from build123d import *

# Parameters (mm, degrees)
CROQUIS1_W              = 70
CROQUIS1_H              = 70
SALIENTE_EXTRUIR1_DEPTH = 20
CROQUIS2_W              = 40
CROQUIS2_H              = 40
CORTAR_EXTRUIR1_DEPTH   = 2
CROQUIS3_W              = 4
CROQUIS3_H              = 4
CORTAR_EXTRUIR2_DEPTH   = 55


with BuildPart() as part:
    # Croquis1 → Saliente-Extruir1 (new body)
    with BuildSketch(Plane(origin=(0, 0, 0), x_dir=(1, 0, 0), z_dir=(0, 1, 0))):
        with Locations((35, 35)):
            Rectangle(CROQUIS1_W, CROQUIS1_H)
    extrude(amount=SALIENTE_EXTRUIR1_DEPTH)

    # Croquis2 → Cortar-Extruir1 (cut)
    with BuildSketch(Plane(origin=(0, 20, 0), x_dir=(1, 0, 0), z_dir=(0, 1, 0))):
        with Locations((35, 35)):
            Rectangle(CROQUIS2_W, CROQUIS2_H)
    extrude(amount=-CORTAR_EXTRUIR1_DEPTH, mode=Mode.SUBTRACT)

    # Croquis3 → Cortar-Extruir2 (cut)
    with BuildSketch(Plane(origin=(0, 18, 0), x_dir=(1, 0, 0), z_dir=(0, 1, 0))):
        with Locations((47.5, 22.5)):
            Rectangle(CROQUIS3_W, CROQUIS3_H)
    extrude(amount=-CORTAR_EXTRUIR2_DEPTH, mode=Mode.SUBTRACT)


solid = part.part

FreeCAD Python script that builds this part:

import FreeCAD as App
import Part
import Sketcher
from FreeCAD import Vector

doc = App.newDocument("Part")
body = doc.addObject("PartDesign::Body", "Body")

# Sketch on XZ plane
sketch1 = doc.addObject("Sketcher::SketchObject", "Sketch")
body.addObject(sketch1)
sketch1.AttachmentSupport = (doc.XZ_Plane, [""])
sketch1.MapMode = "FlatFace"
sketch1.addGeometry(Part.LineSegment(Vector(0, -70, 0), Vector(0, 0, 0)), False)
sketch1.addGeometry(Part.LineSegment(Vector(0, 0, 0), Vector(70, 0, 0)), False)
sketch1.addGeometry(Part.LineSegment(Vector(70, 0, 0), Vector(70, -70, 0)), False)
sketch1.addGeometry(Part.LineSegment(Vector(70, -70, 0), Vector(0, -70, 0)), False)
sketch1.addConstraint(Sketcher.Constraint("Coincident", 0, 2, 1, 1))
sketch1.addConstraint(Sketcher.Constraint("Coincident", 1, 2, 2, 1))
sketch1.addConstraint(Sketcher.Constraint("Coincident", 2, 2, 3, 1))
sketch1.addConstraint(Sketcher.Constraint("Coincident", 3, 2, 0, 1))
sketch1.addConstraint(Sketcher.Constraint("Vertical", 0))
sketch1.addConstraint(Sketcher.Constraint("Horizontal", 1))
sketch1.addConstraint(Sketcher.Constraint("Vertical", 2))
sketch1.addConstraint(Sketcher.Constraint("Horizontal", 3))
sketch1.addConstraint(Sketcher.Constraint("Coincident", 0, 2, -1, 1))
sketch1.addConstraint(Sketcher.Constraint("Equal", 3, 0))
sketch1.addConstraint(Sketcher.Constraint("DistanceX", 1, 1, 1, 2, 70.0))
pad1 = doc.addObject("PartDesign::Pad", "Pad")
body.addObject(pad1)
pad1.Profile = sketch1
pad1.Length = 20
pad1.Reversed = True

# Sketch on XZ plane
sketch2 = doc.addObject("Sketcher::SketchObject", "Sketch001")
body.addObject(sketch2)
sketch2.AttachmentSupport = (doc.XZ_Plane, [""])
sketch2.MapMode = "FlatFace"
sketch2.AttachmentOffset = App.Placement(Vector(0, 0, -20), App.Rotation())
sketch2.addGeometry(Part.LineSegment(Vector(15, -55, 0), Vector(15, -15, 0)), False)
sketch2.addGeometry(Part.LineSegment(Vector(15, -15, 0), Vector(55, -15, 0)), False)
sketch2.addGeometry(Part.LineSegment(Vector(55, -15, 0), Vector(55, -55, 0)), False)
sketch2.addGeometry(Part.LineSegment(Vector(55, -55, 0), Vector(15, -55, 0)), False)
sketch2.addConstraint(Sketcher.Constraint("Coincident", 0, 2, 1, 1))
sketch2.addConstraint(Sketcher.Constraint("Coincident", 1, 2, 2, 1))
sketch2.addConstraint(Sketcher.Constraint("Coincident", 2, 2, 3, 1))
sketch2.addConstraint(Sketcher.Constraint("Coincident", 3, 2, 0, 1))
sketch2.addConstraint(Sketcher.Constraint("Vertical", 0))
sketch2.addConstraint(Sketcher.Constraint("Horizontal", 1))
sketch2.addConstraint(Sketcher.Constraint("Vertical", 2))
sketch2.addConstraint(Sketcher.Constraint("Horizontal", 3))
sketch2.addConstraint(Sketcher.Constraint("Equal", 3, 0))
sketch2.addConstraint(Sketcher.Constraint("DistanceX", 1, 1, 1, 2, 40.0))
sketch2.addConstraint(Sketcher.Constraint("DistanceX", -1, 1, 0, 2, 15.0))
sketch2.addConstraint(Sketcher.Constraint("DistanceY", 0, 2, -1, 1, 15.0))
pocket1 = doc.addObject("PartDesign::Pocket", "Pocket")
body.addObject(pocket1)
pocket1.Profile = sketch2
pocket1.Length = 2
pocket1.Reversed = True

# Sketch on XZ plane
sketch3 = doc.addObject("Sketcher::SketchObject", "Sketch002")
body.addObject(sketch3)
sketch3.AttachmentSupport = (doc.XZ_Plane, [""])
sketch3.MapMode = "FlatFace"
sketch3.AttachmentOffset = App.Placement(Vector(0, 0, -18), App.Rotation())
sketch3.addGeometry(Part.LineSegment(Vector(45.5, -24.5, 0), Vector(45.5, -20.5, 0)), False)
sketch3.addGeometry(Part.LineSegment(Vector(45.5, -20.5, 0), Vector(49.5, -20.5, 0)), False)
sketch3.addGeometry(Part.LineSegment(Vector(49.5, -20.5, 0), Vector(49.5, -24.5, 0)), False)
sketch3.addGeometry(Part.LineSegment(Vector(49.5, -24.5, 0), Vector(45.5, -24.5, 0)), False)
sketch3.addConstraint(Sketcher.Constraint("Coincident", 0, 2, 1, 1))
sketch3.addConstraint(Sketcher.Constraint("Coincident", 1, 2, 2, 1))
sketch3.addConstraint(Sketcher.Constraint("Coincident", 2, 2, 3, 1))
sketch3.addConstraint(Sketcher.Constraint("Coincident", 3, 2, 0, 1))
sketch3.addConstraint(Sketcher.Constraint("Vertical", 0))
sketch3.addConstraint(Sketcher.Constraint("Horizontal", 1))
sketch3.addConstraint(Sketcher.Constraint("Vertical", 2))
sketch3.addConstraint(Sketcher.Constraint("Horizontal", 3))
sketch3.addConstraint(Sketcher.Constraint("Equal", 3, 0))
sketch3.addConstraint(Sketcher.Constraint("DistanceX", 1, 1, 1, 2, 4.0))
sketch3.addConstraint(Sketcher.Constraint("DistanceX", -1, 1, 0, 2, 45.5))
sketch3.addConstraint(Sketcher.Constraint("DistanceY", 0, 2, -1, 1, 20.5))
pocket2 = doc.addObject("PartDesign::Pocket", "Pocket001")
body.addObject(pocket2)
pocket2.Profile = sketch3
pocket2.Length = 55
pocket2.Reversed = True

doc.recompute()
